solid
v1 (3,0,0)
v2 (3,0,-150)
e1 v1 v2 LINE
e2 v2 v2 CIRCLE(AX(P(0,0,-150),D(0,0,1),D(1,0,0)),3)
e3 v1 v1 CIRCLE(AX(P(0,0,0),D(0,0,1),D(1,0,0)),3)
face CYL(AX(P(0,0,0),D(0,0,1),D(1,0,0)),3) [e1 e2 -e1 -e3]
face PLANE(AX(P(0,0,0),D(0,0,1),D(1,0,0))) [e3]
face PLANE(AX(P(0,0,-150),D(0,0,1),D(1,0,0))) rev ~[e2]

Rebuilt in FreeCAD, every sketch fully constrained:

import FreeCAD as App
import Part
import Sketcher

V = App.Vector

doc = App.newDocument("Part")
body = doc.addObject("PartDesign::Body", "Body")

# Sketch on XY plane
sketch1 = doc.addObject("Sketcher::SketchObject", "Sketch")
body.addObject(sketch1)
sketch1.AttachmentSupport = (doc.XY_Plane, [""])
sketch1.MapMode = "FlatFace"
sketch1.addGeometry(Part.Circle(V(0, 0, 0), V(0, 0, 1), 3), False)
sketch1.addConstraint([
    Sketcher.Constraint("Coincident", 0, 3, -1, 1),
    Sketcher.Constraint("Diameter", 0, 6.0),
])
pad1 = doc.addObject("PartDesign::Pad", "Pad")
body.addObject(pad1)
pad1.Profile = sketch1
pad1.Length = 150
pad1.Reversed = True

doc.recompute()
